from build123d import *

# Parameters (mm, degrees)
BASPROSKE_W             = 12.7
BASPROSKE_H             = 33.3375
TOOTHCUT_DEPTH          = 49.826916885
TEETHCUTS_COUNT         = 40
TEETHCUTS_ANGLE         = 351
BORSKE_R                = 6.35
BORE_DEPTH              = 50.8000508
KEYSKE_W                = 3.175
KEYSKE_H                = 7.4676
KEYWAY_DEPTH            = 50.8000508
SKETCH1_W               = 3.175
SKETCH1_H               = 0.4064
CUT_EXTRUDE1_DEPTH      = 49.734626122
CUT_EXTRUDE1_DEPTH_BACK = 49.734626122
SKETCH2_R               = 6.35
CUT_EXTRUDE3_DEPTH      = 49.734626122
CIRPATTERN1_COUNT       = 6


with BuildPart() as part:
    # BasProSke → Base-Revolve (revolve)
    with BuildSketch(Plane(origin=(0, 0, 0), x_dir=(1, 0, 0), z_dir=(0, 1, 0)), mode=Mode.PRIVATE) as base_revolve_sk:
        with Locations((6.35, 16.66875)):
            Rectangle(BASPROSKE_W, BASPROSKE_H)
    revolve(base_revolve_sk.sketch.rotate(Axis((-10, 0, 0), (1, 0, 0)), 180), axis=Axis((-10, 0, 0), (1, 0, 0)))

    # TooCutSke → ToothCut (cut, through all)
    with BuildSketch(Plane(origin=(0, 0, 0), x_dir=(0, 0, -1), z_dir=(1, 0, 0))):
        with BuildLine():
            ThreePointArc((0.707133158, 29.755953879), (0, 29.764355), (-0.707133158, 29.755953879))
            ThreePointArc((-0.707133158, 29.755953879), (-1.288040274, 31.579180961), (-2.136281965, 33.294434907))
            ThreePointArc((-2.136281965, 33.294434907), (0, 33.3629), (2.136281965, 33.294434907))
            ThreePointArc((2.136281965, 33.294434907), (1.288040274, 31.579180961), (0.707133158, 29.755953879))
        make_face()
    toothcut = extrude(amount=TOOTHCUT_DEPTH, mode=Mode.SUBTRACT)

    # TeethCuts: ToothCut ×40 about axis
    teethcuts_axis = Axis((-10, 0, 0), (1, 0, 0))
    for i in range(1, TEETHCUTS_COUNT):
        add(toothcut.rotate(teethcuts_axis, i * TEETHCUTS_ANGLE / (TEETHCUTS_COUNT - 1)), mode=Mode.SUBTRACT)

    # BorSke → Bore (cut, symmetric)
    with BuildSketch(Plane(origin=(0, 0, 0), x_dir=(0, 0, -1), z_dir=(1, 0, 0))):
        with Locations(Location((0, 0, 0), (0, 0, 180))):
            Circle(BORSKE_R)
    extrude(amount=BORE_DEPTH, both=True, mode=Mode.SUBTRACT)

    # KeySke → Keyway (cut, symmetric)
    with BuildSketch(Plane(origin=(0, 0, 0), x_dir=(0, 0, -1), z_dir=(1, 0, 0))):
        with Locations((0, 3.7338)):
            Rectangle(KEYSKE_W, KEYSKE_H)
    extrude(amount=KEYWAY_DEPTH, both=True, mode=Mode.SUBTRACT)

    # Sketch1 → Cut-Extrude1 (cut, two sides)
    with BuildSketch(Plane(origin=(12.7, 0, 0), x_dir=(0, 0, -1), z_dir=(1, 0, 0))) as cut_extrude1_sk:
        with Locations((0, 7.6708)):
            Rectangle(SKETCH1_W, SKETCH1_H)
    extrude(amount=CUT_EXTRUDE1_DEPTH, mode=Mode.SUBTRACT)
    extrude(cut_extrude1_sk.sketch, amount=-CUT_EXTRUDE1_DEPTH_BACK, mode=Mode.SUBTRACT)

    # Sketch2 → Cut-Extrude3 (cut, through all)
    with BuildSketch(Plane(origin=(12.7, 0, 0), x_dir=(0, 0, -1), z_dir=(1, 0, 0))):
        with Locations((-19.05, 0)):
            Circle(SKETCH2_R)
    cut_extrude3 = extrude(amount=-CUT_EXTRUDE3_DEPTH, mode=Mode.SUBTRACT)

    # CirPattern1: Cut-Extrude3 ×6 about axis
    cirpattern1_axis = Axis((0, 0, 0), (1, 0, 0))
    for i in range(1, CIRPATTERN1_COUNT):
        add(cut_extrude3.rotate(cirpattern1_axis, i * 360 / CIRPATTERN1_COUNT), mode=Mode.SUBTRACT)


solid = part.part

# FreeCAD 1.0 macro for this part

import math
import FreeCAD as App
import Part
import Sketcher
from FreeCAD import Vector
Q = App.Units.Quantity

doc = App.newDocument("Part")
body = doc.addObject("PartDesign::Body", "Body")

sketch1 = body.newObject("Sketcher::SketchObject", "Sketch")
sketch1.AttachmentSupport = (doc.getObject("XZ_Plane"), [""])
sketch1.MapMode = "FlatFace"
sketch1.addGeometry([
    Part.LineSegment(Vector(0, -33, 0), Vector(0, 0, 0)),
    Part.LineSegment(Vector(0, 0, 0), Vector(13, 0, 0)),
    Part.LineSegment(Vector(13, 0, 0), Vector(13, -33, 0)),
    Part.LineSegment(Vector(13, -33, 0), Vector(0, -33, 0)),
], False)
sketch1.addConstraint([
    Sketcher.Constraint("Coincident", 0, 2, 1, 1),
    Sketcher.Constraint("Coincident", 1, 2, 2, 1),
    Sketcher.Constraint("Coincident", 2, 2, 3, 1),
    Sketcher.Constraint("Coincident", 3, 2, 0, 1),
    Sketcher.Constraint("Vertical", 0),
    Sketcher.Constraint("Horizontal", 1),
    Sketcher.Constraint("Vertical", 2),
    Sketcher.Constraint("Horizontal", 3),
    Sketcher.Constraint("Coincident", 0, 2, -1, 1),
    Sketcher.Constraint("DistanceX", 1, 1, 1, 2, Q("0.5 in")),
    Sketcher.Constraint("DistanceY", 0, 1, 0, 2, Q("1.3125 in")),
])
revolution = body.newObject("PartDesign::Revolution", "Revolution")
revolution.Profile = sketch1
revolution.ReferenceAxis = (sketch1, ["H_Axis"])
revolution.Angle = 360

sketch2 = body.newObject("Sketcher::SketchObject", "Sketch001")
sketch2.AttachmentSupport = (doc.getObject("YZ_Plane"), [""])
sketch2.MapMode = "FlatFace"
sketch2.addGeometry([
    Part.ArcOfCircle(Part.Circle(Vector(0, 0, 0), Vector(0, 0, 1), 29.8), math.radians(-1.36), math.radians(1.36)),
    Part.ArcOfCircle(Part.Circle(Vector(26.8, -13.1, 0), Vector(0, 0, 1), 12.7), math.radians(59.37), math.radians(76.65)),
    Part.ArcOfCircle(Part.Circle(Vector(0, 0, 0), Vector(0, 0, 1), 33.4), math.radians(-3.67), math.radians(3.67)),
    Part.ArcOfCircle(Part.Circle(Vector(26.8, 13.1, 0), Vector(0, 0, 1), 12.7), math.radians(-76.65), math.radians(-59.37)),
], False)
sketch2.addConstraint([
    Sketcher.Constraint("Coincident", 0, 1, 1, 2),
    Sketcher.Constraint("Coincident", 1, 1, 2, 1),
    Sketcher.Constraint("Coincident", 2, 2, 3, 2),
    Sketcher.Constraint("Coincident", 3, 1, 0, 2),
    Sketcher.Constraint("Coincident", 0, 3, -1, 1),
    Sketcher.Constraint("Coincident", 2, 3, -1, 1),
    Sketcher.Constraint("Equal", 1, 3),
    Sketcher.Constraint("Symmetric", 1, 3, 3, 3, -1),
    Sketcher.Constraint("Radius", 1, Q("0.5 in")),
    Sketcher.Constraint("Radius", 2, Q("1.3135 in")),
    Sketcher.Constraint("Radius", 0, 29.764354),
    Sketcher.Constraint("DistanceX", -1, 1, 1, 3, 26.82308),
    Sketcher.Constraint("DistanceY", 1, 3, -1, 1, 13.063842),
])
pocket1 = body.newObject("PartDesign::Pocket", "Pocket")
pocket1.Profile = sketch2
pocket1.Type = "ThroughAll"
pocket1.Reversed = True
doc.recompute()

polarpattern = body.newObject("PartDesign::PolarPattern", "PolarPattern")
polarpattern.Originals = [pocket1]
polarpattern.Axis = (doc.getObject("X_Axis"), [""])
polarpattern.Angle = 360
polarpattern.Occurrences = 40
body.Tip = polarpattern

sketch3 = body.newObject("Sketcher::SketchObject", "Sketch002")
sketch3.AttachmentSupport = (doc.getObject("YZ_Plane"), [""])
sketch3.MapMode = "FlatFace"
sketch3.addGeometry(Part.Circle(Vector(0, 0, 0), Vector(0, 0, 1), 6), False)
sketch3.addConstraint([
    Sketcher.Constraint("Coincident", 0, 3, -1, 1),
    Sketcher.Constraint("Diameter", 0, Q("0.5 in")),
])
pocket2 = body.newObject("PartDesign::Pocket", "Pocket001")
pocket2.Profile = sketch3
pocket2.Length = 101.600102
pocket2.Midplane = True

sketch4 = body.newObject("Sketcher::SketchObject", "Sketch003")
sketch4.AttachmentSupport = (doc.getObject("YZ_Plane"), [""])
sketch4.MapMode = "FlatFace"
sketch4.addGeometry([
    Part.LineSegment(Vector(7.5, 1.6, 0), Vector(0, 1.6, 0)),
    Part.LineSegment(Vector(0, 1.6, 0), Vector(0, -1.6, 0)),
    Part.LineSegment(Vector(0, -1.6, 0), Vector(7.5, -1.6, 0)),
    Part.LineSegment(Vector(7.5, -1.6, 0), Vector(7.5, 1.6, 0)),
], False)
sketch4.addConstraint([
    Sketcher.Constraint("Coincident", 0, 2, 1, 1),
    Sketcher.Constraint("Coincident", 1, 2, 2, 1),
    Sketcher.Constraint("Coincident", 2, 2, 3, 1),
    Sketcher.Constraint("Coincident", 3, 2, 0, 1),
    Sketcher.Constraint("Horizontal", 0),
    Sketcher.Constraint("Vertical", 1),
    Sketcher.Constraint("Horizontal", 2),
    Sketcher.Constraint("Vertical", 3),
    Sketcher.Constraint("Symmetric", 0, 2, 1, 2, -1, 1),
    Sketcher.Constraint("DistanceX", 0, 2, 0, 1, Q("0.294 in")),
    Sketcher.Constraint("DistanceY", 1, 2, 1, 1, Q("0.125 in")),
])
pocket3 = body.newObject("PartDesign::Pocket", "Pocket002")
pocket3.Profile = sketch4
pocket3.Length = 101.600102
pocket3.Midplane = True

sketch5 = body.newObject("Sketcher::SketchObject", "Sketch004")
sketch5.AttachmentSupport = (doc.getObject("YZ_Plane"), [""])
sketch5.MapMode = "FlatFace"
sketch5.AttachmentOffset = App.Placement(Vector(0, 0, 0.5 * 25.4), App.Rotation())
sketch5.addGeometry([
    Part.LineSegment(Vector(7.87, 1.59, 0), Vector(7.47, 1.59, 0)),
    Part.LineSegment(Vector(7.47, 1.59, 0), Vector(7.47, -1.59, 0)),
    Part.LineSegment(Vector(7.47, -1.59, 0), Vector(7.87, -1.59, 0)),
    Part.LineSegment(Vector(7.87, -1.59, 0), Vector(7.87, 1.59, 0)),
], False)
sketch5.addConstraint([
    Sketcher.Constraint("Coincident", 0, 2, 1, 1),
    Sketcher.Constraint("Coincident", 1, 2, 2, 1),
    Sketcher.Constraint("Coincident", 2, 2, 3, 1),
    Sketcher.Constraint("Coincident", 3, 2, 0, 1),
    Sketcher.Constraint("Horizontal", 0),
    Sketcher.Constraint("Vertical", 1),
    Sketcher.Constraint("Horizontal", 2),
    Sketcher.Constraint("Vertical", 3),
    Sketcher.Constraint("DistanceX", 0, 2, 0, 1, Q("0.016 in")),
    Sketcher.Constraint("DistanceY", 1, 2, 1, 1, Q("0.125 in")),
    Sketcher.Constraint("DistanceX", -1, 1, 2, 2, Q("0.31 in")),
    Sketcher.Constraint("DistanceY", -1, 1, 0, 2, Q("0.0625 in")),
])
pocket4 = body.newObject("PartDesign::Pocket", "Pocket003")
pocket4.Profile = sketch5
pocket4.Type = "ThroughAll"
pocket4.Midplane = True

sketch6 = body.newObject("Sketcher::SketchObject", "Sketch005")
sketch6.AttachmentSupport = (doc.getObject("YZ_Plane"), [""])
sketch6.MapMode = "FlatFace"
sketch6.AttachmentOffset = App.Placement(Vector(0, 0, 0.5 * 25.4), App.Rotation())
sketch6.addGeometry(Part.Circle(Vector(0, 19, 0), Vector(0, 0, 1), 6), False)
sketch6.addConstraint([
    Sketcher.Constraint("PointOnObject", 0, 3, -2),
    Sketcher.Constraint("Diameter", 0, Q("0.5 in")),
    Sketcher.Constraint("DistanceY", -1, 1, 0, 3, Q("0.75 in")),
])
pocket5 = body.newObject("PartDesign::Pocket", "Pocket004")
pocket5.Profile = sketch6
pocket5.Type = "ThroughAll"
doc.recompute()

polarpattern2 = body.newObject("PartDesign::PolarPattern", "PolarPattern001")
polarpattern2.Originals = [pocket5]
polarpattern2.Axis = (doc.getObject("X_Axis"), [""])
polarpattern2.Angle = 360
polarpattern2.Occurrences = 6
body.Tip = polarpattern2

doc.recompute()
